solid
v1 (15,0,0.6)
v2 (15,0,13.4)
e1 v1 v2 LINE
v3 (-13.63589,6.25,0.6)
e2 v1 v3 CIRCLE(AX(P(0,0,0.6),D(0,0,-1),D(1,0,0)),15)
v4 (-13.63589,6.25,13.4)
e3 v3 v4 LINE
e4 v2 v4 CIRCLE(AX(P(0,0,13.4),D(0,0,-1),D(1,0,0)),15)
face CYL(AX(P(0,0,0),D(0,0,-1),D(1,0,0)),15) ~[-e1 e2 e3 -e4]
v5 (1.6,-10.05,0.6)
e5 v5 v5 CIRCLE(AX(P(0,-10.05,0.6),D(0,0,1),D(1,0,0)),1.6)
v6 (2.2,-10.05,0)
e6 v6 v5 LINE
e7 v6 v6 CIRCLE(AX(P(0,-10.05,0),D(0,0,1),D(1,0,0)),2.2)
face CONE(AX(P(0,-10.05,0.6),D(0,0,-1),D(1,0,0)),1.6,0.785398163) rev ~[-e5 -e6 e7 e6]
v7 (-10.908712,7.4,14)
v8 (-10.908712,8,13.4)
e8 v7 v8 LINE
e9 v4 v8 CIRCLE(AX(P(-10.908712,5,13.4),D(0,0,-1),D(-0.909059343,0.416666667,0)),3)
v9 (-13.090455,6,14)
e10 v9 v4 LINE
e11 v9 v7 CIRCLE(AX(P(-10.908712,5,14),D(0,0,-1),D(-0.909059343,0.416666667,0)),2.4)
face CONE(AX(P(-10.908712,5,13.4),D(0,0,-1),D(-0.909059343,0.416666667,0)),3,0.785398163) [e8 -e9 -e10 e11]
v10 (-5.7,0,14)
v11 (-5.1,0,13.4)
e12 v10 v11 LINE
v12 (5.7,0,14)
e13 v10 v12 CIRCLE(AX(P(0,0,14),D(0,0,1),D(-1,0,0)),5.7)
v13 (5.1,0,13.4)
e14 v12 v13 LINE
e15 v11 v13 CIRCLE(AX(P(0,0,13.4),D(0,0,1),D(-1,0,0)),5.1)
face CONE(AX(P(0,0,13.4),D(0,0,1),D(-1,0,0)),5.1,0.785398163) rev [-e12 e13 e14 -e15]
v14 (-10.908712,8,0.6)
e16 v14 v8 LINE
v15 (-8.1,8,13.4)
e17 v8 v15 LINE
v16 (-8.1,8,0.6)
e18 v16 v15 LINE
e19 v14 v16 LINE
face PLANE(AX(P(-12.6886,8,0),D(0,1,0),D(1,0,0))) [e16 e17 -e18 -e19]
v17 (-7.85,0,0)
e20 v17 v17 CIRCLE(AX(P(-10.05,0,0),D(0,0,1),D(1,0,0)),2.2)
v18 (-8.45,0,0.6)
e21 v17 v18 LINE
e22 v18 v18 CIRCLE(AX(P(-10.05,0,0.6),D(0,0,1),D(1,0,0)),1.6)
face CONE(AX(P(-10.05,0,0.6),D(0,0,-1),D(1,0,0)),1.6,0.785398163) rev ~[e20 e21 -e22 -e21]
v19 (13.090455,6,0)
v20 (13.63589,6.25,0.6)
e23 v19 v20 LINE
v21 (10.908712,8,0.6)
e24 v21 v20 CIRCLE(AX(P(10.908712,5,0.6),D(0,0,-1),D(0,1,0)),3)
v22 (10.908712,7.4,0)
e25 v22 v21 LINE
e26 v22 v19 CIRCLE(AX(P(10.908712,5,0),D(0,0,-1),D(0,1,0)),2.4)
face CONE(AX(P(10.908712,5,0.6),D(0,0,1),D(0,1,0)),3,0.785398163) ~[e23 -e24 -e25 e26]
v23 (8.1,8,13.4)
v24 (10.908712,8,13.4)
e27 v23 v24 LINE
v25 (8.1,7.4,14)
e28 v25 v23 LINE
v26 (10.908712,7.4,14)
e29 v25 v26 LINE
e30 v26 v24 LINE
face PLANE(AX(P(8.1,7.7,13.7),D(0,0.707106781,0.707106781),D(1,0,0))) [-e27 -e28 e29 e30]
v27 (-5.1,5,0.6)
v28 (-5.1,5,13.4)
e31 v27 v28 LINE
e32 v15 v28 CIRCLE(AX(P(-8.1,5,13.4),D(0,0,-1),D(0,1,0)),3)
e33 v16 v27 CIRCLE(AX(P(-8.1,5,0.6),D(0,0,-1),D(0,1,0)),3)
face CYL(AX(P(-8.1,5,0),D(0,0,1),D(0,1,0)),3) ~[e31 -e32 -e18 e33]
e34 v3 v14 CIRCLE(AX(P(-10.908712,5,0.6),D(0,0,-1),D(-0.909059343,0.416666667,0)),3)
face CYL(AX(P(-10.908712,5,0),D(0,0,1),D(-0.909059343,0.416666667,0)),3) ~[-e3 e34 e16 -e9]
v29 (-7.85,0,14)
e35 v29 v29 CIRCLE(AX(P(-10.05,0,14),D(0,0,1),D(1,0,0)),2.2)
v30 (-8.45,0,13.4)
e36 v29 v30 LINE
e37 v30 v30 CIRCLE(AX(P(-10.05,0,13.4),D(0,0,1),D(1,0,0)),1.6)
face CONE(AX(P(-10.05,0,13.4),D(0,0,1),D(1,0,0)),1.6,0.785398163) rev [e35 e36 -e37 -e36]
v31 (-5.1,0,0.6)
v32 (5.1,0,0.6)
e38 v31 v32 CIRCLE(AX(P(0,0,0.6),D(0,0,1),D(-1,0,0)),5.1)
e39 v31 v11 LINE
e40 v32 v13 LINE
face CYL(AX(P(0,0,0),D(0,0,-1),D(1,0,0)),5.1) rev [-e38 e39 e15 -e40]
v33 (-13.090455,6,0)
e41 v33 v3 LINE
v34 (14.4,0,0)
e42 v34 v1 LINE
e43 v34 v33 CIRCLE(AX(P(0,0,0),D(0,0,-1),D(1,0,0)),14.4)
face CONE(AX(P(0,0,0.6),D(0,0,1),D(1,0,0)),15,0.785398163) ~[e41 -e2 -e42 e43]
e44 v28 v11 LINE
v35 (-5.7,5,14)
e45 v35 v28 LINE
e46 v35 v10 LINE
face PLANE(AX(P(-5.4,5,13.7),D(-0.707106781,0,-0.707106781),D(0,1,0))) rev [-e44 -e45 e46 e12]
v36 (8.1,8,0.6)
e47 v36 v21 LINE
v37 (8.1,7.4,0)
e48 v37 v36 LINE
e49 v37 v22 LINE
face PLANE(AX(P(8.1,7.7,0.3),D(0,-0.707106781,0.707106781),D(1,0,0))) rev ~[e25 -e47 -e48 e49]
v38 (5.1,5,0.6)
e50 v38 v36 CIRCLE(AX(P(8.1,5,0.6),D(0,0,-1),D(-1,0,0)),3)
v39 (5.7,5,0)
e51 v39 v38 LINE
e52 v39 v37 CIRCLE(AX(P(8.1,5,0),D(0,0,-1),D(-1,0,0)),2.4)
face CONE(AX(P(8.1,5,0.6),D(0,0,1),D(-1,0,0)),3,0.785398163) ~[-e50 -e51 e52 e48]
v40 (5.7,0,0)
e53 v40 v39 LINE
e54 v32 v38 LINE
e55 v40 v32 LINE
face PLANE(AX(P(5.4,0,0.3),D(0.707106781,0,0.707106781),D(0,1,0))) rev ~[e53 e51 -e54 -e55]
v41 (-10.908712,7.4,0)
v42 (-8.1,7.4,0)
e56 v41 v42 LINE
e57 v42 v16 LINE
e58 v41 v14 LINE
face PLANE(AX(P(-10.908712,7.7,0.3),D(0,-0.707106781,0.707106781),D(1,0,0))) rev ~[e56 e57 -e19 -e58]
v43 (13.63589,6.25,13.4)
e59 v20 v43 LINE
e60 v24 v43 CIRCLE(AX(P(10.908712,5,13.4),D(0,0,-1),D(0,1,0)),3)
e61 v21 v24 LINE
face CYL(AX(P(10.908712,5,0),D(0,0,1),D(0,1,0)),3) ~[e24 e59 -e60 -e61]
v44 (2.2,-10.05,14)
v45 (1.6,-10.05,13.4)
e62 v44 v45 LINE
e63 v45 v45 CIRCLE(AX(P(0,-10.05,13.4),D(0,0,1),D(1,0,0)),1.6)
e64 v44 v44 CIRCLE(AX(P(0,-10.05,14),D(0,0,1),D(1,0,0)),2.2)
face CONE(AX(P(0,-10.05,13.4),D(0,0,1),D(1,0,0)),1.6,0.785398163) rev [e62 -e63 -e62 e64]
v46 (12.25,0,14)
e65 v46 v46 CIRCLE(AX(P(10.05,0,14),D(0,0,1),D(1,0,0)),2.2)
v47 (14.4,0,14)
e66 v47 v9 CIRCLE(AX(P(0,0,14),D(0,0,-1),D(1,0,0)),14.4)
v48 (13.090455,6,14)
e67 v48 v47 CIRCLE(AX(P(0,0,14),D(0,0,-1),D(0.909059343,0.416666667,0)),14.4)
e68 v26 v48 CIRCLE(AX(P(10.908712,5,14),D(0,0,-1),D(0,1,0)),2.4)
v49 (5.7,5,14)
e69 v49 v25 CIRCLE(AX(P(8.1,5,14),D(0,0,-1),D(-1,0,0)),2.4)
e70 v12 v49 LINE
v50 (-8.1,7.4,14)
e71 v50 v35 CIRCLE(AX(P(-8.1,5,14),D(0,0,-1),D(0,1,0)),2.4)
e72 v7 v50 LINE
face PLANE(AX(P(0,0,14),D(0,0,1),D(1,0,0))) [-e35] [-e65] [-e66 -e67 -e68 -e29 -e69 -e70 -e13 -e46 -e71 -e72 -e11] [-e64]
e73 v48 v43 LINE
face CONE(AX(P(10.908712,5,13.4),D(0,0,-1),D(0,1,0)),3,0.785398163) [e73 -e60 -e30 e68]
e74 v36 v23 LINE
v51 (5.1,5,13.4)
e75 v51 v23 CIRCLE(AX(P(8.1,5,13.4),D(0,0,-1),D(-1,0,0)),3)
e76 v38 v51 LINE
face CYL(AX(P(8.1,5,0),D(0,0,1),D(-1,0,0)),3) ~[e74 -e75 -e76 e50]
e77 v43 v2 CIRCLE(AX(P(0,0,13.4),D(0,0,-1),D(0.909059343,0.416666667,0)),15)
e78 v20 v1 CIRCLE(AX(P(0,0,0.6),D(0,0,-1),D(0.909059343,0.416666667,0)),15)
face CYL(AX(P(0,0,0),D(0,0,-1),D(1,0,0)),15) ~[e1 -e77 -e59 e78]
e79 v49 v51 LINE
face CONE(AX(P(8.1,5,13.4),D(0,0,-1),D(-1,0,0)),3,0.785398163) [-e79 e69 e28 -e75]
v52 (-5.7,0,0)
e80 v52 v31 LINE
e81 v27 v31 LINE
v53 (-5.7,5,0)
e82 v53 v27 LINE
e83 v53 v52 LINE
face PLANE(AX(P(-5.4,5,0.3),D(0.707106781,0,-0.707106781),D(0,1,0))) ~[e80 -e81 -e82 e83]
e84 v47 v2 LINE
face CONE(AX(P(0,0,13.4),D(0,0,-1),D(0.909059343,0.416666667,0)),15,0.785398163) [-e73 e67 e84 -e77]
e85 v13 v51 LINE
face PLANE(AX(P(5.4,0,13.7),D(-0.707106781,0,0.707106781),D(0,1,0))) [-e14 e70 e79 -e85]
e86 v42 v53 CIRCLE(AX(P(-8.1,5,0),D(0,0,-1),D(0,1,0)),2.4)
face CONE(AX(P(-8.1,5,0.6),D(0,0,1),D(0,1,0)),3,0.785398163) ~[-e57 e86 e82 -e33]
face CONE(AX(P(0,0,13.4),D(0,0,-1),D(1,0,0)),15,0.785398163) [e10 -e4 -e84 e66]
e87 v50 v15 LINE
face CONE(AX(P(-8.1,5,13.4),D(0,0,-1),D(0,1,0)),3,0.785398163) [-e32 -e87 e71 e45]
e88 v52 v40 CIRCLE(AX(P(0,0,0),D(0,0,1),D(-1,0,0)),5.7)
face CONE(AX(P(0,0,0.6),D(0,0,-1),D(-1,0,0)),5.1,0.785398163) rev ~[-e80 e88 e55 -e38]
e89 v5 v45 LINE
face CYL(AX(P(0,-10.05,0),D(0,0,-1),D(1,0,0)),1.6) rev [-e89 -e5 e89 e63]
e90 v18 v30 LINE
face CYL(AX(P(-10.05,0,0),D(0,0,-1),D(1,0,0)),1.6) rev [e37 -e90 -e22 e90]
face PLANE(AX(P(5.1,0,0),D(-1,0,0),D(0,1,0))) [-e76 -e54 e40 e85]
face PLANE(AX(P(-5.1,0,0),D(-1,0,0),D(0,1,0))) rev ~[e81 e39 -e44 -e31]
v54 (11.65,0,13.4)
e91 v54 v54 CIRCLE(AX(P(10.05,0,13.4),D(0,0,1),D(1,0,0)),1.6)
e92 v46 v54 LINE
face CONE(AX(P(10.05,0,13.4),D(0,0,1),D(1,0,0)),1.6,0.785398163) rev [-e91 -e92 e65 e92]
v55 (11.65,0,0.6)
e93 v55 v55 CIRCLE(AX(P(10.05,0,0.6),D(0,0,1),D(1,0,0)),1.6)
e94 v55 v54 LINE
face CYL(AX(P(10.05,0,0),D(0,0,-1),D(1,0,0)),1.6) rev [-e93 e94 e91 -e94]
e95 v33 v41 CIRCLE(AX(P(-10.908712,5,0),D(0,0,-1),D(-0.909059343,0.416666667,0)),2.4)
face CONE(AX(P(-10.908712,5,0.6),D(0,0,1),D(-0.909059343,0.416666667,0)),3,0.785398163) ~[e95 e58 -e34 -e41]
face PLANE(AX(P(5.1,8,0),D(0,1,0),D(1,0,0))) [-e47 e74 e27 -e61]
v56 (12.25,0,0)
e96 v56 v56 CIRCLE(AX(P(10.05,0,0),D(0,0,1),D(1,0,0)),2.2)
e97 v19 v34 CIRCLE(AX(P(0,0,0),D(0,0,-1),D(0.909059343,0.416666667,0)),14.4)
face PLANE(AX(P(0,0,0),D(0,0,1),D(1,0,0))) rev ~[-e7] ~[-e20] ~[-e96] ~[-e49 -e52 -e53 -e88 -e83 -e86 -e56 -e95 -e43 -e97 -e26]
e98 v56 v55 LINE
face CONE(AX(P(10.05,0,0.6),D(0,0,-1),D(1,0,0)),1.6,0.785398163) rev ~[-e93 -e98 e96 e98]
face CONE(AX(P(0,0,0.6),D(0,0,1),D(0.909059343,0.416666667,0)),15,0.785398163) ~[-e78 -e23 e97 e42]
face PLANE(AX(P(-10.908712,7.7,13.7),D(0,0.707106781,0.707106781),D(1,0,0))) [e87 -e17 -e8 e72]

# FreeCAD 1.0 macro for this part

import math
import FreeCAD as App
import Part
import Sketcher
from FreeCAD import Vector


def edges_at(feature, points):
    """Names of the edges that pass closest to the given points."""
    edges = feature.Shape.Edges
    near = lambda p: min(range(len(edges)), key=lambda i: edges[i].distToShape(Part.Vertex(*p))[0])
    return sorted({f"Edge{near(p) + 1}" for p in points})

doc = App.newDocument("Part")
body = doc.addObject("PartDesign::Body", "Body")

# Sketch on XY plane
sketch1 = doc.addObject("Sketcher::SketchObject", "Sketch")
body.addObject(sketch1)
sketch1.AttachmentSupport = (doc.XY_Plane, [""])
sketch1.MapMode = "FlatFace"
sketch1.addGeometry([
    Part.LineSegment(Vector(5.1, 8, 0), Vector(5.1, 0, 0)),  # 0
    Part.ArcOfCircle(Part.Circle(Vector(0, 0, 0), Vector(0, 0, 1), 5.1), math.radians(180), math.radians(360)),  # 1
    Part.LineSegment(Vector(-5.1, 0, 0), Vector(-5.1, 8, 0)),  # 2
    Part.LineSegment(Vector(-5.1, 8, 0), Vector(-12.6886, 8, 0)),  # 3
    Part.ArcOfCircle(Part.Circle(Vector(0, 0, 0), Vector(0, 0, 1), 15), math.radians(147.769093), math.radians(392.230907)),  # 4
    Part.LineSegment(Vector(12.6886, 8, 0), Vector(5.1, 8, 0)),  # 5
    Part.Circle(Vector(0, -10.05, 0), Vector(0, 0, 1), 1.6),  # 6
    Part.Circle(Vector(-10.05, 0, 0), Vector(0, 0, 1), 1.6),  # 7
    Part.Circle(Vector(10.05, 0, 0), Vector(0, 0, 1), 1.6),  # 8
], False)
sketch1.addConstraint([
    Sketcher.Constraint("Tangent", 0, 2, 1, 2),
    Sketcher.Constraint("Tangent", 1, 1, 2, 1),
    Sketcher.Constraint("Coincident", 2, 2, 3, 1),
    Sketcher.Constraint("Coincident", 3, 2, 4, 1),
    Sketcher.Constraint("Coincident", 4, 2, 5, 1),
    Sketcher.Constraint("Coincident", 5, 2, 0, 1),
    Sketcher.Constraint("Vertical", 0),
    Sketcher.Constraint("Vertical", 2),
    Sketcher.Constraint("Horizontal", 3),
    Sketcher.Constraint("Horizontal", 5),
    Sketcher.Constraint("Coincident", 1, 3, -1, 1),
    Sketcher.Constraint("Coincident", 4, 3, -1, 1),
    Sketcher.Constraint("Equal", 6, 7),
    Sketcher.Constraint("Equal", 7, 8),
    Sketcher.Constraint("Symmetric", 7, 3, 8, 3, -1, 1),
    Sketcher.Constraint("PointOnObject", 6, 3, -2),
    Sketcher.Constraint("PointOnObject", 7, 3, -1),
    Sketcher.Constraint("Horizontal", 3, 2, 4, 2),
    Sketcher.Constraint("Radius", 4, 15.0),
    Sketcher.Constraint("Diameter", 6, 3.2),
    Sketcher.Constraint("Radius", 1, 5.1),
    Sketcher.Constraint("DistanceY", 0, 2, 0, 1, 8.0),
    Sketcher.Constraint("DistanceX", 7, 3, 8, 3, 20.1),
    Sketcher.Constraint("DistanceY", 6, 3, -1, 1, 10.05),
])
pad1 = doc.addObject("PartDesign::Pad", "Pad")
body.addObject(pad1)
pad1.Profile = sketch1
pad1.Length = 14
doc.recompute()

fillet = doc.addObject("PartDesign::Fillet", "Fillet")
body.addObject(fillet)
fillet.Base = (pad1, edges_at(pad1, [
    (-12.689, 8, 7),
    (-5.1, 8, 7),
    (5.1, 8, 7),
    (12.689, 8, 7),
]))
fillet.Radius = 3
doc.recompute()

chamfer = doc.addObject("PartDesign::Chamfer", "Chamfer")
body.addObject(chamfer)
chamfer.Base = (fillet, edges_at(fillet, [
    (-5.979, 7.121, 14),
    (-5.1, 2.5, 14),
    (0, -5.1, 14),
    (5.1, 2.5, 14),
    (5.979, 7.121, 14),
    (9.504, 8, 14),
    (12.529, 7.525, 14),
    (0, -15, 14),
    (-12.529, 7.525, 14),
    (-9.504, 8, 14),
    (-11.65, 0, 14),
    (-1.6, -10.05, 14),
    (8.45, 0, 14),
    (0, -5.1, 0),
    (-5.1, 2.5, 0),
    (-5.979, 7.121, 0),
    (-9.504, 8, 0),
    (-12.529, 7.525, 0),
    (0, -15, 0),
    (12.529, 7.525, 0),
    (9.504, 8, 0),
    (5.979, 7.121, 0),
    (5.1, 2.5, 0),
    (-11.65, 0, 0),
    (-1.6, -10.05, 0),
    (8.45, 0, 0),
]))
chamfer.Size = 0.6

doc.recompute()
